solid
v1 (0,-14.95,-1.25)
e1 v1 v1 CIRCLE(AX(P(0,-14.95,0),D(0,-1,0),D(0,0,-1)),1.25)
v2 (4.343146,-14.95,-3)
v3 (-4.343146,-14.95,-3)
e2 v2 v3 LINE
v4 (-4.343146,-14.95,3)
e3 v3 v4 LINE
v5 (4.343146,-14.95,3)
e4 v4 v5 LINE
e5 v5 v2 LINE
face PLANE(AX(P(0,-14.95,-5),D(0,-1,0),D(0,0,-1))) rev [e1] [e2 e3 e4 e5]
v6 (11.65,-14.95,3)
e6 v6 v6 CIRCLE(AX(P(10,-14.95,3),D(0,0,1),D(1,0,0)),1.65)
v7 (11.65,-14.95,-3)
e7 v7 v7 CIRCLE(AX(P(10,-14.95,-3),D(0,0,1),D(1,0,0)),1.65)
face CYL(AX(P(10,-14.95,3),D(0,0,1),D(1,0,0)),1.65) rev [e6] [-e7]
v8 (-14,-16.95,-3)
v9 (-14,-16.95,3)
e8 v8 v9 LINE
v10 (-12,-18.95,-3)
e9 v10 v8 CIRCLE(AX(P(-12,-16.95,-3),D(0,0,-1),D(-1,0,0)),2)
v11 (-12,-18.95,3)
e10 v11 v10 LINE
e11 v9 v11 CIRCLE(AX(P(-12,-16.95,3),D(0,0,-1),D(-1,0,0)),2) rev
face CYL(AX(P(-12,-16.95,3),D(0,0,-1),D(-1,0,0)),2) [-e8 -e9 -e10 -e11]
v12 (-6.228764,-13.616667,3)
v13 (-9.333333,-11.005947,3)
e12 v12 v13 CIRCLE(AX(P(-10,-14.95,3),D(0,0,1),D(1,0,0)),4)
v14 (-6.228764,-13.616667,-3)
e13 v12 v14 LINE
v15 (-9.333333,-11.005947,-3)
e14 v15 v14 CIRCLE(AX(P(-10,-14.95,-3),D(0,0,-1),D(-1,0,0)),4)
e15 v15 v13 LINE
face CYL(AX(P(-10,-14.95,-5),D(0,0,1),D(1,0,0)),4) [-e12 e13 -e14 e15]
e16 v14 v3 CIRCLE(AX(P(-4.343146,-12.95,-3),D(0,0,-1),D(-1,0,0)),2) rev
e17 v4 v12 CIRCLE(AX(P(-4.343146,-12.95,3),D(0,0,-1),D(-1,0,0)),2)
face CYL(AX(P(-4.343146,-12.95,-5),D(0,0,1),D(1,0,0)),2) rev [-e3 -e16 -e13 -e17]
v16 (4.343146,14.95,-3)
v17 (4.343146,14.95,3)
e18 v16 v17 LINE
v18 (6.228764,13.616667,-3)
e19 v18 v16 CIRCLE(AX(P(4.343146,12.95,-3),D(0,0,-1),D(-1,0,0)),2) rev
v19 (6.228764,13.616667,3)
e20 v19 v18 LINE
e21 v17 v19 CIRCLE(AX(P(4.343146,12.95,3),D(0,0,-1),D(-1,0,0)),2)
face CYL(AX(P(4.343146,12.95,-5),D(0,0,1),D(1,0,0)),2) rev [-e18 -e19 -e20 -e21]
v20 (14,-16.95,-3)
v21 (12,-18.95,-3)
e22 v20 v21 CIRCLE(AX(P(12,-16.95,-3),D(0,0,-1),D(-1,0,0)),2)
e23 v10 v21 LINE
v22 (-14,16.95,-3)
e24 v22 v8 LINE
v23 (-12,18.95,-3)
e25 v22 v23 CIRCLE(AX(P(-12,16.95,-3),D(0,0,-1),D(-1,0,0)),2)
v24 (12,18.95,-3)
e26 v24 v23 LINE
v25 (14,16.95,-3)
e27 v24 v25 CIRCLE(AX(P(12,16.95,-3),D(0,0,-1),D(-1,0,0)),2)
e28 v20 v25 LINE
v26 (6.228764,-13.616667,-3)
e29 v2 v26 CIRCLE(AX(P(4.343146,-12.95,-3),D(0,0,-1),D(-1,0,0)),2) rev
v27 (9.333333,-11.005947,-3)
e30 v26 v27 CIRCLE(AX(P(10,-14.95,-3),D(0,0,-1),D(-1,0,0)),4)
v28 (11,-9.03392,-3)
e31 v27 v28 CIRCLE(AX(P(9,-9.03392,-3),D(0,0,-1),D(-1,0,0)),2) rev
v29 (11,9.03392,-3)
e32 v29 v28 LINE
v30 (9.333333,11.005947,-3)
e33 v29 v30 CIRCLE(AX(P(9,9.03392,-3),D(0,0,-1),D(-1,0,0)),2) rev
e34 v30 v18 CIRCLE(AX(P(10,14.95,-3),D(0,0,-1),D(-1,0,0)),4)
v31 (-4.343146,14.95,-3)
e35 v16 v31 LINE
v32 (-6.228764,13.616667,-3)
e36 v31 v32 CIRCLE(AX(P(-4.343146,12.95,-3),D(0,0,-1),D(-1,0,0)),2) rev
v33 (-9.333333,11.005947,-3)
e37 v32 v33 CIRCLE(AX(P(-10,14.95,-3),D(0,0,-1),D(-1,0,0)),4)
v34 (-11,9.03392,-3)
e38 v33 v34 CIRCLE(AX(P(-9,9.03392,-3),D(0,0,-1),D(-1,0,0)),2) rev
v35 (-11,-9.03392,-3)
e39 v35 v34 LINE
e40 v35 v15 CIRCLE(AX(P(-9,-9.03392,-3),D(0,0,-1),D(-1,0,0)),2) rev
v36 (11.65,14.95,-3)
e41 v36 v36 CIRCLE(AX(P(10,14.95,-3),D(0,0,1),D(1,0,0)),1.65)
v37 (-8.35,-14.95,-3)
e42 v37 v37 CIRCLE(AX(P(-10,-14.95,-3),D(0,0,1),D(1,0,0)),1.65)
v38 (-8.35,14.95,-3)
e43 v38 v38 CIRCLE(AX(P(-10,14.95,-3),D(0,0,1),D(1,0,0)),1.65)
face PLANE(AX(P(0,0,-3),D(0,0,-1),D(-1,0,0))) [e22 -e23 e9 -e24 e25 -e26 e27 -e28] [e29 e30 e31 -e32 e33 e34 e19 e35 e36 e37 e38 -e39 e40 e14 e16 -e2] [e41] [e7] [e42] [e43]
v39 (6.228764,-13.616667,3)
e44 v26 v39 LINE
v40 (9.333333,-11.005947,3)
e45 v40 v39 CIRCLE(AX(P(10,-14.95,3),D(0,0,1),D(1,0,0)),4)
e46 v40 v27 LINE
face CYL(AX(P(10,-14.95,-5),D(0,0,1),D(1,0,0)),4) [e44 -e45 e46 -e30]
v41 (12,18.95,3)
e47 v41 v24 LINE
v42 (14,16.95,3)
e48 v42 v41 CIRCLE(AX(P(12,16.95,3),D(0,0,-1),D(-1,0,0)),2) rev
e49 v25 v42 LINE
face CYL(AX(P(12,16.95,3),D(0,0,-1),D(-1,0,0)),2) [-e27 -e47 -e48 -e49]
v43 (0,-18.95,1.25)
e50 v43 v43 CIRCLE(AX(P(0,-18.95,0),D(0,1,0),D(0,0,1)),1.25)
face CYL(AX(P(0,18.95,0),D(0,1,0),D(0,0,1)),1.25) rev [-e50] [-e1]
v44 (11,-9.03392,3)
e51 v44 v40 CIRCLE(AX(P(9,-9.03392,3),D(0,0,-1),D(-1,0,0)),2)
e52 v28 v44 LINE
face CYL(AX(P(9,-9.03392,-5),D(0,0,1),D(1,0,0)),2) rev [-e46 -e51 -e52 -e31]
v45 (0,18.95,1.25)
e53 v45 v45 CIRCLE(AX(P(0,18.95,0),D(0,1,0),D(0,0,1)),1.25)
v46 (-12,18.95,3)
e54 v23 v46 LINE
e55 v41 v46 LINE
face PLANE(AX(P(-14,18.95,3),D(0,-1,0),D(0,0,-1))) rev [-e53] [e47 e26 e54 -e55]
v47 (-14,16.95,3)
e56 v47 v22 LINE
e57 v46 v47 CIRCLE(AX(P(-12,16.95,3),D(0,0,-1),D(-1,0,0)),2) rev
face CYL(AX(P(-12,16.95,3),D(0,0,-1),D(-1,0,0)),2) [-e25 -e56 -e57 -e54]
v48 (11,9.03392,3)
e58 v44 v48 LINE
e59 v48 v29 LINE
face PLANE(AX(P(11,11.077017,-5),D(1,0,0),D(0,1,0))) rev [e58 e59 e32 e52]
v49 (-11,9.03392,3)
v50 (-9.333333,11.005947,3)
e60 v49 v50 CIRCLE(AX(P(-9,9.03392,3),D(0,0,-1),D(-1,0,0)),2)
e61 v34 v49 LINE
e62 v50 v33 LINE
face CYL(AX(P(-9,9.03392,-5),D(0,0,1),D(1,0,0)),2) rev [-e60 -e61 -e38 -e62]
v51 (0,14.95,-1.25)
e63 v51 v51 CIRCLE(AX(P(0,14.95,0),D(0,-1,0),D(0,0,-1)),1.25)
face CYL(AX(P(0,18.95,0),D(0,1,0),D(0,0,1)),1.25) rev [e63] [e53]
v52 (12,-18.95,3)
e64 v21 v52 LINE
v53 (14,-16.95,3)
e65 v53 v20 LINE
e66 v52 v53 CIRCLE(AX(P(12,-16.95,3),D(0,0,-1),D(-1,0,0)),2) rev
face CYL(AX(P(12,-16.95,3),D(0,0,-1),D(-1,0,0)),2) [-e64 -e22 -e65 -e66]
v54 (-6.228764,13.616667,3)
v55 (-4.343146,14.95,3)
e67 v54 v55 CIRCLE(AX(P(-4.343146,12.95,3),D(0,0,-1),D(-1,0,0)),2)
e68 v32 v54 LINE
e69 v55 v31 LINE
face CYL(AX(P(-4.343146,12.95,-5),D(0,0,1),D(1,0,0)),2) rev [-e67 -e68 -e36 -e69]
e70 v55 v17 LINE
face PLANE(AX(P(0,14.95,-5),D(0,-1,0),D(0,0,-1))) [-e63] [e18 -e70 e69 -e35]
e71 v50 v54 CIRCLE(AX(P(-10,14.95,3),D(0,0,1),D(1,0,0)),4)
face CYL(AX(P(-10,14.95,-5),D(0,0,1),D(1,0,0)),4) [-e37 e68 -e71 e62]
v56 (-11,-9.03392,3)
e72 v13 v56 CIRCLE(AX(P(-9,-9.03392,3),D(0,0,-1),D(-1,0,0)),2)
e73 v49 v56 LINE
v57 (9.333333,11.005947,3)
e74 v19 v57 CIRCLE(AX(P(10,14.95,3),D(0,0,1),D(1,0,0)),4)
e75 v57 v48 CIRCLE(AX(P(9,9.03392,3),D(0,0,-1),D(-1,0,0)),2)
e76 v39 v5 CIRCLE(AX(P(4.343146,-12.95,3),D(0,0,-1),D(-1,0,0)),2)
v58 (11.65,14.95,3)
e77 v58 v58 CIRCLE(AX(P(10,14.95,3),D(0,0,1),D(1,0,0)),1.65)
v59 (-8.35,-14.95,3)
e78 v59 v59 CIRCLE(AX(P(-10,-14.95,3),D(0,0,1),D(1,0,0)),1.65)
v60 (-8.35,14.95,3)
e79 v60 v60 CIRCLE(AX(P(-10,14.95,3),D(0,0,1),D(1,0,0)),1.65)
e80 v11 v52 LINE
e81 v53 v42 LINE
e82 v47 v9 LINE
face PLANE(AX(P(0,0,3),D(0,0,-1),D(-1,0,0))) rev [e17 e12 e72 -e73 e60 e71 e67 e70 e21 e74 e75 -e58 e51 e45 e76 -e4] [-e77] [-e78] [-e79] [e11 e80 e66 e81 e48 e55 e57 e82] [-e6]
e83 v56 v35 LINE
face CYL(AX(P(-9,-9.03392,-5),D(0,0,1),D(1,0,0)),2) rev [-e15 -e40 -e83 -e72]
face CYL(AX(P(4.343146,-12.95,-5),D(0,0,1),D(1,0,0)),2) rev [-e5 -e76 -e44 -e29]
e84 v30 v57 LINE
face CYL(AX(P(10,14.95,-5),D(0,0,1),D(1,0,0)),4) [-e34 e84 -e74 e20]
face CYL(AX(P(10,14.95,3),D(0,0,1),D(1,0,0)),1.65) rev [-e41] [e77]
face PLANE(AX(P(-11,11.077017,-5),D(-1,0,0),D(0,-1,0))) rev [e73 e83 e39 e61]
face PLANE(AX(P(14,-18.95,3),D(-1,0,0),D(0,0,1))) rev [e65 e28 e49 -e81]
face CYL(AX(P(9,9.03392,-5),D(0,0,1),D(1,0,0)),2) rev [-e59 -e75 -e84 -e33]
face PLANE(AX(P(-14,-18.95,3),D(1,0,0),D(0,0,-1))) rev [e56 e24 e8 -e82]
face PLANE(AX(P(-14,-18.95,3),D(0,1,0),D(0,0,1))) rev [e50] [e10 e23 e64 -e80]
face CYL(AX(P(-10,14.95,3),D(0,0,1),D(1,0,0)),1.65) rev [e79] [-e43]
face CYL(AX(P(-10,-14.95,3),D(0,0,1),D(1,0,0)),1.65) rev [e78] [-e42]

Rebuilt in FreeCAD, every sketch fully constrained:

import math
import FreeCAD as App
import Part
import Sketcher
from FreeCAD import Vector


def edges_at(feature, points):
    """Names of the edges that pass closest to the given points."""
    edges = feature.Shape.Edges
    near = lambda p: min(range(len(edges)), key=lambda i: edges[i].distToShape(Part.Vertex(*p))[0])
    return sorted({f"Edge{near(p) + 1}" for p in points})


def add_polygon(sketch, points):
    """Adds a closed chain of lines whose ends are joined by coincident constraints."""
    first, n = sketch.GeometryCount, len(points)
    for a, b in zip(points, points[1:] + points[:1]):
        sketch.addGeometry(Part.LineSegment(App.Vector(*a, 0), App.Vector(*b, 0)), False)
    for i in range(n):
        sketch.addConstraint(Sketcher.Constraint("Coincident", first + i, 2, first + (i + 1) % n, 1))

doc = App.newDocument("Part")
body = doc.addObject("PartDesign::Body", "Body")

sketch1 = body.newObject("Sketcher::SketchObject", "Sketch")
sketch1.AttachmentSupport = (doc.getObject("XY_Plane"), [""])
sketch1.MapMode = "FlatFace"
add_polygon(sketch1, [(-14, 19), (-14, -19), (14, -19), (14, 19)])
sketch1.addConstraint([
    Sketcher.Constraint("Vertical", 0),
    Sketcher.Constraint("Horizontal", 1),
    Sketcher.Constraint("Vertical", 2),
    Sketcher.Constraint("Horizontal", 3),
    Sketcher.Constraint("Symmetric", 0, 2, 2, 2, -1, 1),
    Sketcher.Constraint("DistanceX", 1, 1, 1, 2, 28.0),
    Sketcher.Constraint("DistanceY", 0, 2, 0, 1, 37.9),
])
pad1 = body.newObject("PartDesign::Pad", "Pad")
pad1.Profile = sketch1
pad1.Length = 6
pad1.Midplane = True

sketch2 = body.newObject("Sketcher::SketchObject", "Sketch001")
sketch2.AttachmentSupport = (doc.getObject("XY_Plane"), [""])
sketch2.MapMode = "FlatFace"
sketch2.AttachmentOffset = App.Placement(Vector(0, 0, 3), App.Rotation())
sketch2.addGeometry([
    Part.Circle(Vector(-10, 14.9, 0), Vector(0, 0, 1), 1.6),
    Part.Circle(Vector(10, 14.9, 0), Vector(0, 0, 1), 1.6),
    Part.Circle(Vector(10, -14.9, 0), Vector(0, 0, 1), 1.6),
    Part.Circle(Vector(-10, -14.9, 0), Vector(0, 0, 1), 1.6),
], False)
sketch2.addConstraint([
    Sketcher.Constraint("Equal", 0, 1),
    Sketcher.Constraint("Equal", 1, 2),
    Sketcher.Constraint("Equal", 2, 3),
    Sketcher.Constraint("Symmetric", 0, 3, 2, 3, -1, 1),
    Sketcher.Constraint("Symmetric", 1, 3, 3, 3, -1, 1),
    Sketcher.Constraint("Symmetric", 0, 3, 1, 3, -2),
    Sketcher.Constraint("Diameter", 0, 3.3),
    Sketcher.Constraint("DistanceX", 0, 3, -1, 1, 10.0),
    Sketcher.Constraint("DistanceY", 2, 3, 1, 3, 29.9),
])
doc.recompute()
hole = body.newObject("PartDesign::Hole", "Hole")
hole.Profile = sketch2
hole.ThreadType = "None"
hole.Diameter = 3.3
hole.DepthType = "ThroughAll"

sketch3 = body.newObject("Sketcher::SketchObject", "Sketch002")
sketch3.AttachmentSupport = (doc.getObject("XY_Plane"), [""])
sketch3.MapMode = "FlatFace"
sketch3.AttachmentOffset = App.Placement(Vector(0, 0, 3), App.Rotation())
sketch3.addGeometry([
    Part.ArcOfCircle(Part.Circle(Vector(-10, -14.9, 0), Vector(0, 0, 1), 4), math.radians(0), math.radians(90)),
    Part.LineSegment(Vector(-6, -14.9, 0), Vector(6, -14.9, 0)),
    Part.ArcOfCircle(Part.Circle(Vector(10, -14.9, 0), Vector(0, 0, 1), 4), math.radians(90), math.radians(180)),
    Part.LineSegment(Vector(10, -10.9, 0), Vector(10, 10.9, 0)),
    Part.ArcOfCircle(Part.Circle(Vector(10, 14.9, 0), Vector(0, 0, 1), 4), math.radians(180), math.radians(270)),
    Part.LineSegment(Vector(6, 14.9, 0), Vector(-6, 14.9, 0)),
    Part.ArcOfCircle(Part.Circle(Vector(-10, 14.9, 0), Vector(0, 0, 1), 4), math.radians(-90), math.radians(0)),
    Part.LineSegment(Vector(-10, 10.9, 0), Vector(-10, -10.9, 0)),
], False)
sketch3.addConstraint([
    Sketcher.Constraint("Coincident", 0, 1, 1, 1),
    Sketcher.Constraint("Coincident", 1, 2, 2, 2),
    Sketcher.Constraint("Coincident", 2, 1, 3, 1),
    Sketcher.Constraint("Coincident", 3, 2, 4, 2),
    Sketcher.Constraint("Coincident", 4, 1, 5, 1),
    Sketcher.Constraint("Coincident", 5, 2, 6, 2),
    Sketcher.Constraint("Coincident", 6, 1, 7, 1),
    Sketcher.Constraint("Coincident", 7, 2, 0, 2),
    Sketcher.Constraint("Horizontal", 1),
    Sketcher.Constraint("Vertical", 3),
    Sketcher.Constraint("Horizontal", 5),
    Sketcher.Constraint("Vertical", 7),
    Sketcher.Constraint("Equal", 0, 2),
    Sketcher.Constraint("Equal", 2, 4),
    Sketcher.Constraint("Equal", 4, 6),
    Sketcher.Constraint("Symmetric", 0, 3, 4, 3, -1, 1),
    Sketcher.Constraint("Symmetric", 2, 3, 6, 3, -1, 1),
    Sketcher.Constraint("Symmetric", 0, 3, 2, 3, -2),
    Sketcher.Constraint("Horizontal", 2, 3, 0, 1),
    Sketcher.Constraint("Horizontal", 6, 3, 4, 1),
    Sketcher.Constraint("Vertical", 4, 3, 2, 1),
    Sketcher.Constraint("Vertical", 0, 3, 6, 1),
    Sketcher.Constraint("Radius", 0, 4.0),
    Sketcher.Constraint("DistanceX", 1, 1, 1, 2, 12.0),
    Sketcher.Constraint("DistanceY", 3, 1, 3, 2, 21.9),
])
pocket1 = body.newObject("PartDesign::Pocket", "Pocket")
pocket1.Profile = sketch3
pocket1.Length = 8
doc.recompute()

fillet = body.newObject("PartDesign::Fillet", "Fillet")
fillet.Base = (pocket1, edges_at(pocket1, [
    (14, -18.95, 0),
    (-14, -18.95, 0),
    (-14, 18.95, 0),
    (14, 18.95, 0),
]))
fillet.Radius = 2

sketch4 = body.newObject("Sketcher::SketchObject", "Sketch003")
sketch4.AttachmentSupport = (doc.getObject("XY_Plane"), [""])
sketch4.MapMode = "FlatFace"
sketch4.AttachmentOffset = App.Placement(Vector(0, 0, 3), App.Rotation())
sketch4.addGeometry([
    Part.LineSegment(Vector(-11, 11.1, 0), Vector(-11, -11.1, 0)),
    Part.ArcOfCircle(Part.Circle(Vector(-10, -14.9, 0), Vector(0, 0, 1), 4), math.radians(90), math.radians(104.48)),
    Part.LineSegment(Vector(-10, -10.9, 0), Vector(-10, 10.9, 0)),
    Part.ArcOfCircle(Part.Circle(Vector(-10, 14.9, 0), Vector(0, 0, 1), 4), math.radians(-104.48), math.radians(-90)),
    Part.LineSegment(Vector(11, -11.1, 0), Vector(11, 11.1, 0)),
    Part.ArcOfCircle(Part.Circle(Vector(10, 14.9, 0), Vector(0, 0, 1), 4), math.radians(-90), math.radians(-75.52)),
    Part.LineSegment(Vector(10, 10.9, 0), Vector(10, -10.9, 0)),
    Part.ArcOfCircle(Part.Circle(Vector(10, -14.9, 0), Vector(0, 0, 1), 4), math.radians(75.52), math.radians(90)),
], False)
sketch4.addConstraint([
    Sketcher.Constraint("Coincident", 0, 2, 1, 2),
    Sketcher.Constraint("Coincident", 1, 1, 2, 1),
    Sketcher.Constraint("Coincident", 2, 2, 3, 2),
    Sketcher.Constraint("Coincident", 3, 1, 0, 1),
    Sketcher.Constraint("Coincident", 4, 2, 5, 2),
    Sketcher.Constraint("Coincident", 5, 1, 6, 1),
    Sketcher.Constraint("Coincident", 6, 2, 7, 2),
    Sketcher.Constraint("Coincident", 7, 1, 4, 1),
    Sketcher.Constraint("Vertical", 0),
    Sketcher.Constraint("Vertical", 2),
    Sketcher.Constraint("Vertical", 4),
    Sketcher.Constraint("Vertical", 6),
    Sketcher.Constraint("Equal", 1, 3),
    Sketcher.Constraint("Equal", 3, 5),
    Sketcher.Constraint("Equal", 5, 7),
    Sketcher.Constraint("Symmetric", 1, 3, 5, 3, -1, 1),
    Sketcher.Constraint("Symmetric", 3, 3, 7, 3, -1, 1),
    Sketcher.Constraint("Symmetric", 3, 3, 5, 3, -2),
    Sketcher.Constraint("Horizontal", 3, 1, 4, 2),
    Sketcher.Constraint("Vertical", 3, 3, 1, 1),
    Sketcher.Constraint("Vertical", 7, 3, 5, 1),
    Sketcher.Constraint("Radius", 1, 4.0),
    Sketcher.Constraint("DistanceY", 2, 1, 2, 2, 21.9),
    Sketcher.Constraint("DistanceX", 1, 3, -1, 1, 10.0),
    Sketcher.Constraint("DistanceX", 0, 2, -1, 1, 11.0),
])
pocket2 = body.newObject("PartDesign::Pocket", "Pocket001")
pocket2.Profile = sketch4
pocket2.Length = 8
doc.recompute()

fillet2 = body.newObject("PartDesign::Fillet", "Fillet001")
fillet2.Base = (pocket2, edges_at(pocket2, [
    (-11, 11.077, 0),
    (-11, -11.077, 0),
    (11, 11.077, 0),
    (11, -11.077, 0),
    (6, -14.95, 0),
    (-6, -14.95, 0),
    (-6, 14.95, 0),
    (6, 14.95, 0),
]))
fillet2.Radius = 2

sketch5 = body.newObject("Sketcher::SketchObject", "Sketch004")
sketch5.AttachmentSupport = (doc.getObject("XZ_Plane"), [""])
sketch5.MapMode = "FlatFace"
sketch5.AttachmentOffset = App.Placement(Vector(0, 0, -18.95), App.Rotation())
sketch5.addGeometry(Part.Circle(Vector(0, 0, 0), Vector(0, 0, 1), 1.2), False)
sketch5.addConstraint([
    Sketcher.Constraint("Coincident", 0, 3, -1, 1),
    Sketcher.Constraint("Diameter", 0, 2.5),
])
doc.recompute()
hole2 = body.newObject("PartDesign::Hole", "Hole001")
hole2.Profile = sketch5
hole2.ThreadType = "None"
hole2.Diameter = 2.5
hole2.DepthType = "ThroughAll"
hole2.Reversed = True

doc.recompute()
